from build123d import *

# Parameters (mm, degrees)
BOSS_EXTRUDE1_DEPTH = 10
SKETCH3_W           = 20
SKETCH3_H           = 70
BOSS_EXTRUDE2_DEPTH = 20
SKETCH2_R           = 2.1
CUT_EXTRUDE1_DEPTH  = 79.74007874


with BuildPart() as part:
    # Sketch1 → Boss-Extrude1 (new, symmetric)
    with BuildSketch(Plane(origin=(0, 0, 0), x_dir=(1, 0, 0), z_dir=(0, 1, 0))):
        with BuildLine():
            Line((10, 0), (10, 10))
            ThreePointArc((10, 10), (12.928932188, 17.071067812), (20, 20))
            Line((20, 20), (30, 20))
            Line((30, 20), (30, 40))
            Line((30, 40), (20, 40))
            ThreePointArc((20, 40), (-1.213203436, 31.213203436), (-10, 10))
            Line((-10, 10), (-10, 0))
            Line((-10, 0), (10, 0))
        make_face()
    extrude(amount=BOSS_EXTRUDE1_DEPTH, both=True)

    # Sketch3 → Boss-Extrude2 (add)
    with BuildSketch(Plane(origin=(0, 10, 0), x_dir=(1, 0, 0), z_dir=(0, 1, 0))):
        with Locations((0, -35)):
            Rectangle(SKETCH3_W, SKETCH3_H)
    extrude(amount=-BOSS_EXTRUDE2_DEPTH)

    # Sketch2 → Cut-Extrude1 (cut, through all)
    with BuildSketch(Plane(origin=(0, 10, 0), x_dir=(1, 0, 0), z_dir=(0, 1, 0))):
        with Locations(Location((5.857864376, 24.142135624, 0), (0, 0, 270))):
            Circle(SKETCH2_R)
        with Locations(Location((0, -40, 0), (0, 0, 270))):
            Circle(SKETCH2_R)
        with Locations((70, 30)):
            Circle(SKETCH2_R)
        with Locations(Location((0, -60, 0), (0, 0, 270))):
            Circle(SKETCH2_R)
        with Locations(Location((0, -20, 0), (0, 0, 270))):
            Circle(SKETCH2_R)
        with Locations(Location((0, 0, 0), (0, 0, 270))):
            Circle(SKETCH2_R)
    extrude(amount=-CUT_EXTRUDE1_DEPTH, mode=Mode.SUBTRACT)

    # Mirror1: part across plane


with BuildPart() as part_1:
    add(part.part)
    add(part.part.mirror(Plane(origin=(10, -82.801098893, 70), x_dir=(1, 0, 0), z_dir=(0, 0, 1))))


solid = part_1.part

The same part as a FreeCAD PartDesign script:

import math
import FreeCAD as App
import Part
import Sketcher
Q = App.Units.Quantity

doc = App.newDocument("Part")
params = doc.addObject("Spreadsheet::Sheet", "Params")
for row, (alias, value) in enumerate([
    ("sketch1_radius", "10 mm"),
    ("sketch1_radius2", "30 mm"),
    ("sketch1_width", "10 mm"),
    ("pad1_length", "20 mm"),
    ("sketch2_width", "20 mm"),
    ("sketch2_height", "70 mm"),
    ("pad2_length", "20 mm"),
    ("sketch3_diameter", "4.2 mm"),
], start=1):
    params.set(f"A{row}", alias)
    params.set(f"B{row}", "=" + value)
    params.setAlias(f"B{row}", alias)

body = doc.addObject("PartDesign::Body", "Body")

sketch1 = doc.addObject("Sketcher::SketchObject", "Sketch")
body.addObject(sketch1)
sketch1.AttachmentSupport = (doc.XZ_Plane, [""])
sketch1.MapMode = "FlatFace"
sketch1.addGeometry(Part.LineSegment(App.Vector(10, 0, 0), App.Vector(10, -10, 0)), False)
sketch1.addGeometry(Part.ArcOfCircle(Part.Circle(App.Vector(20, -10, 0), App.Vector(0, 0, 1), 10), math.radians(180), math.radians(270)), False)
sketch1.addGeometry(Part.LineSegment(App.Vector(20, -20, 0), App.Vector(30, -20, 0)), False)
sketch1.addGeometry(Part.LineSegment(App.Vector(30, -20, 0), App.Vector(30, -40, 0)), False)
sketch1.addGeometry(Part.LineSegment(App.Vector(30, -40, 0), App.Vector(20, -40, 0)), False)
sketch1.addGeometry(Part.ArcOfCircle(Part.Circle(App.Vector(20, -10, 0), App.Vector(0, 0, 1), 30), math.radians(180), math.radians(270)), False)
sketch1.addGeometry(Part.LineSegment(App.Vector(-10, -10, 0), App.Vector(-10, 0, 0)), False)
sketch1.addGeometry(Part.LineSegment(App.Vector(-10, 0, 0), App.Vector(10, 0, 0)), False)
sketch1.addConstraint(Sketcher.Constraint("Tangent", 0, 2, 1, 1))
sketch1.addConstraint(Sketcher.Constraint("Tangent", 1, 2, 2, 1))
sketch1.addConstraint(Sketcher.Constraint("Coincident", 2, 2, 3, 1))
sketch1.addConstraint(Sketcher.Constraint("Coincident", 3, 2, 4, 1))
sketch1.addConstraint(Sketcher.Constraint("Tangent", 4, 2, 5, 2))
sketch1.addConstraint(Sketcher.Constraint("Tangent", 5, 1, 6, 1))
sketch1.addConstraint(Sketcher.Constraint("Coincident", 6, 2, 7, 1))
sketch1.addConstraint(Sketcher.Constraint("Coincident", 7, 2, 0, 1))
sketch1.addConstraint(Sketcher.Constraint("Vertical", 0))
sketch1.addConstraint(Sketcher.Constraint("Horizontal", 2))
sketch1.addConstraint(Sketcher.Constraint("Vertical", 3))
sketch1.addConstraint(Sketcher.Constraint("Horizontal", 4))
sketch1.addConstraint(Sketcher.Constraint("Vertical", 6))
sketch1.addConstraint(Sketcher.Constraint("Horizontal", 7))
sketch1.addConstraint(Sketcher.Constraint("Coincident", 5, 3, 1, 3))
sketch1.addConstraint(Sketcher.Constraint("Symmetric", 6, 2, 7, 2, -1, 1))
sketch1.addConstraint(Sketcher.Constraint("Equal", 4, 0))
sketch1.addConstraint(Sketcher.Constraint("Radius", 1, Q("10 mm")))
sketch1.addConstraint(Sketcher.Constraint("Radius", 5, Q("30 mm")))
sketch1.addConstraint(Sketcher.Constraint("DistanceX", 2, 1, 2, 2, Q("10 mm")))
sketch1.setExpression("Constraints[17]", "Params.sketch1_radius")
sketch1.setExpression("Constraints[18]", "Params.sketch1_radius2")
sketch1.setExpression("Constraints[19]", "Params.sketch1_width")
pad1 = doc.addObject("PartDesign::Pad", "Pad")
body.addObject(pad1)
pad1.Profile = sketch1
pad1.setExpression("Length", "Params.pad1_length")
pad1.Midplane = True

sketch2 = doc.addObject("Sketcher::SketchObject", "Sketch001")
body.addObject(sketch2)
sketch2.AttachmentSupport = (doc.XZ_Plane, [""])
sketch2.MapMode = "FlatFace"
sketch2.AttachmentOffset = App.Placement(App.Vector(0, 0, -10), App.Rotation())
sketch2.addGeometry(Part.LineSegment(App.Vector(-10, 0, 0), App.Vector(-10, 70, 0)), False)
sketch2.addGeometry(Part.LineSegment(App.Vector(-10, 70, 0), App.Vector(10, 70, 0)), False)
sketch2.addGeometry(Part.LineSegment(App.Vector(10, 70, 0), App.Vector(10, 0, 0)), False)
sketch2.addGeometry(Part.LineSegment(App.Vector(10, 0, 0), App.Vector(-10, 0, 0)), False)
sketch2.addConstraint(Sketcher.Constraint("Coincident", 0, 2, 1, 1))
sketch2.addConstraint(Sketcher.Constraint("Coincident", 1, 2, 2, 1))
sketch2.addConstraint(Sketcher.Constraint("Coincident", 2, 2, 3, 1))
sketch2.addConstraint(Sketcher.Constraint("Coincident", 3, 2, 0, 1))
sketch2.addConstraint(Sketcher.Constraint("Vertical", 0))
sketch2.addConstraint(Sketcher.Constraint("Horizontal", 1))
sketch2.addConstraint(Sketcher.Constraint("Vertical", 2))
sketch2.addConstraint(Sketcher.Constraint("Horizontal", 3))
sketch2.addConstraint(Sketcher.Constraint("Symmetric", 2, 2, 3, 2, -1, 1))
sketch2.addConstraint(Sketcher.Constraint("DistanceX", 1, 1, 1, 2, Q("20 mm")))
sketch2.addConstraint(Sketcher.Constraint("DistanceY", 0, 1, 0, 2, Q("70 mm")))
sketch2.setExpression("Constraints[9]", "Params.sketch2_width")
sketch2.setExpression("Constraints[10]", "Params.sketch2_height")
pad2 = doc.addObject("PartDesign::Pad", "Pad001")
body.addObject(pad2)
pad2.Profile = sketch2
pad2.setExpression("Length", "Params.pad2_length")

sketch3 = doc.addObject("Sketcher::SketchObject", "Sketch002")
body.addObject(sketch3)
sketch3.AttachmentSupport = (doc.XZ_Plane, [""])
sketch3.MapMode = "FlatFace"
sketch3.AttachmentOffset = App.Placement(App.Vector(0, 0, -10), App.Rotation())
sketch3.addGeometry(Part.Circle(App.Vector(5.857864, -24.142136, 0), App.Vector(0, 0, 1), 2.1), False)
sketch3.addGeometry(Part.Circle(App.Vector(0, 40, 0), App.Vector(0, 0, 1), 2.1), False)
sketch3.addGeometry(Part.Circle(App.Vector(70, -30, 0), App.Vector(0, 0, 1), 2.1), False)
sketch3.addGeometry(Part.Circle(App.Vector(0, 60, 0), App.Vector(0, 0, 1), 2.1), False)
sketch3.addGeometry(Part.Circle(App.Vector(0, 20, 0), App.Vector(0, 0, 1), 2.1), False)
sketch3.addGeometry(Part.Circle(App.Vector(0, 0, 0), App.Vector(0, 0, 1), 2.1), False)
sketch3.addConstraint(Sketcher.Constraint("Coincident", 5, 3, -1, 1))
sketch3.addConstraint(Sketcher.Constraint("Equal", 0, 1))
sketch3.addConstraint(Sketcher.Constraint("Equal", 1, 2))
sketch3.addConstraint(Sketcher.Constraint("Equal", 2, 3))
sketch3.addConstraint(Sketcher.Constraint("Equal", 3, 4))
sketch3.addConstraint(Sketcher.Constraint("Equal", 4, 5))
sketch3.addConstraint(Sketcher.Constraint("PointOnObject", 1, 3, -2))
sketch3.addConstraint(Sketcher.Constraint("PointOnObject", 3, 3, -2))
sketch3.addConstraint(Sketcher.Constraint("PointOnObject", 4, 3, -2))
sketch3.addConstraint(Sketcher.Constraint("Diameter", 0, Q("4.2 mm")))
sketch3.addConstraint(Sketcher.Constraint("DistanceY", -1, 1, 1, 3, Q("40 mm")))
sketch3.addConstraint(Sketcher.Constraint("DistanceX", -1, 1, 2, 3, Q("70 mm")))
sketch3.addConstraint(Sketcher.Constraint("DistanceY", 2, 3, -1, 1, Q("30 mm")))
sketch3.addConstraint(Sketcher.Constraint("DistanceY", -1, 1, 3, 3, Q("60 mm")))
sketch3.addConstraint(Sketcher.Constraint("DistanceY", -1, 1, 4, 3, Q("20 mm")))
sketch3.addConstraint(Sketcher.Constraint("DistanceX", -1, 1, 0, 3, Q("5.857864 mm")))
sketch3.addConstraint(Sketcher.Constraint("DistanceY", 0, 3, -1, 1, Q("24.142136 mm")))
sketch3.setExpression("Constraints[9]", "Params.sketch3_diameter")
pocket1 = doc.addObject("PartDesign::Pocket", "Pocket")
body.addObject(pocket1)
pocket1.Profile = sketch3
pocket1.Type = "ThroughAll"
pocket1.Reversed = True
body2 = doc.addObject("PartDesign::Body", "Body001")
doc.recompute()

body2.BaseFeature = body
doc.recompute()

mirroring = doc.addObject("Part::Mirroring", "Mirroring")
mirroring.Source = body
mirroring.Base = App.Vector(10, -82.801099, 70)
mirroring.Normal = App.Vector(0, 0, 1)
body3 = doc.addObject("PartDesign::Body", "Body002")
body3.BaseFeature = mirroring
boolean = doc.addObject("PartDesign::Boolean", "Boolean")
body2.addObject(boolean)
boolean.Type = "Fuse"
boolean.addObjects([body3])
doc.recompute()
mirroring.Visibility = False

doc.recompute()
